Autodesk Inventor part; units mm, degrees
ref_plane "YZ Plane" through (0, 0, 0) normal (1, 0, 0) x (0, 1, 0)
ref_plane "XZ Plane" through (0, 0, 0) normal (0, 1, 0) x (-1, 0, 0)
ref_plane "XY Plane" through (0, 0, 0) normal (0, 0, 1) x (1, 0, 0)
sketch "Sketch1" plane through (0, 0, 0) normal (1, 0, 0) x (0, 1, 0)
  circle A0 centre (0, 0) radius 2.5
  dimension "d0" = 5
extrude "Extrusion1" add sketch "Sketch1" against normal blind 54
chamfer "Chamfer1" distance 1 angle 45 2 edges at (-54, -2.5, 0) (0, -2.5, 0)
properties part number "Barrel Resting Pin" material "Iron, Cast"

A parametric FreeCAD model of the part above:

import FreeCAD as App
import Part
import Sketcher
Q = App.Units.Quantity


def edges_at(feature, points):
    """Names of the edges that pass closest to the given points."""
    edges = feature.Shape.Edges
    near = lambda p: min(range(len(edges)), key=lambda i: edges[i].distToShape(Part.Vertex(*p))[0])
    return sorted({f"Edge{near(p) + 1}" for p in points})

doc = App.newDocument("Part")
body = doc.addObject("PartDesign::Body", "Body")

sketch1 = body.newObject("Sketcher::SketchObject", "Sketch")
sketch1.AttachmentSupport = (doc.getObject("YZ_Plane"), [""])
sketch1.MapMode = "FlatFace"
sketch1.addGeometry(Part.Circle(App.Vector(0, 0, 0), App.Vector(0, 0, 1), 2.5), False)
sketch1.addConstraint(Sketcher.Constraint("Coincident", 0, 3, -1, 1))
sketch1.addConstraint(Sketcher.Constraint("Diameter", 0, Q("5 mm")))
pad1 = body.newObject("PartDesign::Pad", "Pad")
pad1.Profile = sketch1
pad1.Length = 54
pad1.Reversed = True
doc.recompute()

chamfer = body.newObject("PartDesign::Chamfer", "Chamfer")
chamfer.Base = (pad1, edges_at(pad1, [(-54, -2.5, 0), (0, -2.5, 0)]))
chamfer.Size = 1

doc.recompute()
